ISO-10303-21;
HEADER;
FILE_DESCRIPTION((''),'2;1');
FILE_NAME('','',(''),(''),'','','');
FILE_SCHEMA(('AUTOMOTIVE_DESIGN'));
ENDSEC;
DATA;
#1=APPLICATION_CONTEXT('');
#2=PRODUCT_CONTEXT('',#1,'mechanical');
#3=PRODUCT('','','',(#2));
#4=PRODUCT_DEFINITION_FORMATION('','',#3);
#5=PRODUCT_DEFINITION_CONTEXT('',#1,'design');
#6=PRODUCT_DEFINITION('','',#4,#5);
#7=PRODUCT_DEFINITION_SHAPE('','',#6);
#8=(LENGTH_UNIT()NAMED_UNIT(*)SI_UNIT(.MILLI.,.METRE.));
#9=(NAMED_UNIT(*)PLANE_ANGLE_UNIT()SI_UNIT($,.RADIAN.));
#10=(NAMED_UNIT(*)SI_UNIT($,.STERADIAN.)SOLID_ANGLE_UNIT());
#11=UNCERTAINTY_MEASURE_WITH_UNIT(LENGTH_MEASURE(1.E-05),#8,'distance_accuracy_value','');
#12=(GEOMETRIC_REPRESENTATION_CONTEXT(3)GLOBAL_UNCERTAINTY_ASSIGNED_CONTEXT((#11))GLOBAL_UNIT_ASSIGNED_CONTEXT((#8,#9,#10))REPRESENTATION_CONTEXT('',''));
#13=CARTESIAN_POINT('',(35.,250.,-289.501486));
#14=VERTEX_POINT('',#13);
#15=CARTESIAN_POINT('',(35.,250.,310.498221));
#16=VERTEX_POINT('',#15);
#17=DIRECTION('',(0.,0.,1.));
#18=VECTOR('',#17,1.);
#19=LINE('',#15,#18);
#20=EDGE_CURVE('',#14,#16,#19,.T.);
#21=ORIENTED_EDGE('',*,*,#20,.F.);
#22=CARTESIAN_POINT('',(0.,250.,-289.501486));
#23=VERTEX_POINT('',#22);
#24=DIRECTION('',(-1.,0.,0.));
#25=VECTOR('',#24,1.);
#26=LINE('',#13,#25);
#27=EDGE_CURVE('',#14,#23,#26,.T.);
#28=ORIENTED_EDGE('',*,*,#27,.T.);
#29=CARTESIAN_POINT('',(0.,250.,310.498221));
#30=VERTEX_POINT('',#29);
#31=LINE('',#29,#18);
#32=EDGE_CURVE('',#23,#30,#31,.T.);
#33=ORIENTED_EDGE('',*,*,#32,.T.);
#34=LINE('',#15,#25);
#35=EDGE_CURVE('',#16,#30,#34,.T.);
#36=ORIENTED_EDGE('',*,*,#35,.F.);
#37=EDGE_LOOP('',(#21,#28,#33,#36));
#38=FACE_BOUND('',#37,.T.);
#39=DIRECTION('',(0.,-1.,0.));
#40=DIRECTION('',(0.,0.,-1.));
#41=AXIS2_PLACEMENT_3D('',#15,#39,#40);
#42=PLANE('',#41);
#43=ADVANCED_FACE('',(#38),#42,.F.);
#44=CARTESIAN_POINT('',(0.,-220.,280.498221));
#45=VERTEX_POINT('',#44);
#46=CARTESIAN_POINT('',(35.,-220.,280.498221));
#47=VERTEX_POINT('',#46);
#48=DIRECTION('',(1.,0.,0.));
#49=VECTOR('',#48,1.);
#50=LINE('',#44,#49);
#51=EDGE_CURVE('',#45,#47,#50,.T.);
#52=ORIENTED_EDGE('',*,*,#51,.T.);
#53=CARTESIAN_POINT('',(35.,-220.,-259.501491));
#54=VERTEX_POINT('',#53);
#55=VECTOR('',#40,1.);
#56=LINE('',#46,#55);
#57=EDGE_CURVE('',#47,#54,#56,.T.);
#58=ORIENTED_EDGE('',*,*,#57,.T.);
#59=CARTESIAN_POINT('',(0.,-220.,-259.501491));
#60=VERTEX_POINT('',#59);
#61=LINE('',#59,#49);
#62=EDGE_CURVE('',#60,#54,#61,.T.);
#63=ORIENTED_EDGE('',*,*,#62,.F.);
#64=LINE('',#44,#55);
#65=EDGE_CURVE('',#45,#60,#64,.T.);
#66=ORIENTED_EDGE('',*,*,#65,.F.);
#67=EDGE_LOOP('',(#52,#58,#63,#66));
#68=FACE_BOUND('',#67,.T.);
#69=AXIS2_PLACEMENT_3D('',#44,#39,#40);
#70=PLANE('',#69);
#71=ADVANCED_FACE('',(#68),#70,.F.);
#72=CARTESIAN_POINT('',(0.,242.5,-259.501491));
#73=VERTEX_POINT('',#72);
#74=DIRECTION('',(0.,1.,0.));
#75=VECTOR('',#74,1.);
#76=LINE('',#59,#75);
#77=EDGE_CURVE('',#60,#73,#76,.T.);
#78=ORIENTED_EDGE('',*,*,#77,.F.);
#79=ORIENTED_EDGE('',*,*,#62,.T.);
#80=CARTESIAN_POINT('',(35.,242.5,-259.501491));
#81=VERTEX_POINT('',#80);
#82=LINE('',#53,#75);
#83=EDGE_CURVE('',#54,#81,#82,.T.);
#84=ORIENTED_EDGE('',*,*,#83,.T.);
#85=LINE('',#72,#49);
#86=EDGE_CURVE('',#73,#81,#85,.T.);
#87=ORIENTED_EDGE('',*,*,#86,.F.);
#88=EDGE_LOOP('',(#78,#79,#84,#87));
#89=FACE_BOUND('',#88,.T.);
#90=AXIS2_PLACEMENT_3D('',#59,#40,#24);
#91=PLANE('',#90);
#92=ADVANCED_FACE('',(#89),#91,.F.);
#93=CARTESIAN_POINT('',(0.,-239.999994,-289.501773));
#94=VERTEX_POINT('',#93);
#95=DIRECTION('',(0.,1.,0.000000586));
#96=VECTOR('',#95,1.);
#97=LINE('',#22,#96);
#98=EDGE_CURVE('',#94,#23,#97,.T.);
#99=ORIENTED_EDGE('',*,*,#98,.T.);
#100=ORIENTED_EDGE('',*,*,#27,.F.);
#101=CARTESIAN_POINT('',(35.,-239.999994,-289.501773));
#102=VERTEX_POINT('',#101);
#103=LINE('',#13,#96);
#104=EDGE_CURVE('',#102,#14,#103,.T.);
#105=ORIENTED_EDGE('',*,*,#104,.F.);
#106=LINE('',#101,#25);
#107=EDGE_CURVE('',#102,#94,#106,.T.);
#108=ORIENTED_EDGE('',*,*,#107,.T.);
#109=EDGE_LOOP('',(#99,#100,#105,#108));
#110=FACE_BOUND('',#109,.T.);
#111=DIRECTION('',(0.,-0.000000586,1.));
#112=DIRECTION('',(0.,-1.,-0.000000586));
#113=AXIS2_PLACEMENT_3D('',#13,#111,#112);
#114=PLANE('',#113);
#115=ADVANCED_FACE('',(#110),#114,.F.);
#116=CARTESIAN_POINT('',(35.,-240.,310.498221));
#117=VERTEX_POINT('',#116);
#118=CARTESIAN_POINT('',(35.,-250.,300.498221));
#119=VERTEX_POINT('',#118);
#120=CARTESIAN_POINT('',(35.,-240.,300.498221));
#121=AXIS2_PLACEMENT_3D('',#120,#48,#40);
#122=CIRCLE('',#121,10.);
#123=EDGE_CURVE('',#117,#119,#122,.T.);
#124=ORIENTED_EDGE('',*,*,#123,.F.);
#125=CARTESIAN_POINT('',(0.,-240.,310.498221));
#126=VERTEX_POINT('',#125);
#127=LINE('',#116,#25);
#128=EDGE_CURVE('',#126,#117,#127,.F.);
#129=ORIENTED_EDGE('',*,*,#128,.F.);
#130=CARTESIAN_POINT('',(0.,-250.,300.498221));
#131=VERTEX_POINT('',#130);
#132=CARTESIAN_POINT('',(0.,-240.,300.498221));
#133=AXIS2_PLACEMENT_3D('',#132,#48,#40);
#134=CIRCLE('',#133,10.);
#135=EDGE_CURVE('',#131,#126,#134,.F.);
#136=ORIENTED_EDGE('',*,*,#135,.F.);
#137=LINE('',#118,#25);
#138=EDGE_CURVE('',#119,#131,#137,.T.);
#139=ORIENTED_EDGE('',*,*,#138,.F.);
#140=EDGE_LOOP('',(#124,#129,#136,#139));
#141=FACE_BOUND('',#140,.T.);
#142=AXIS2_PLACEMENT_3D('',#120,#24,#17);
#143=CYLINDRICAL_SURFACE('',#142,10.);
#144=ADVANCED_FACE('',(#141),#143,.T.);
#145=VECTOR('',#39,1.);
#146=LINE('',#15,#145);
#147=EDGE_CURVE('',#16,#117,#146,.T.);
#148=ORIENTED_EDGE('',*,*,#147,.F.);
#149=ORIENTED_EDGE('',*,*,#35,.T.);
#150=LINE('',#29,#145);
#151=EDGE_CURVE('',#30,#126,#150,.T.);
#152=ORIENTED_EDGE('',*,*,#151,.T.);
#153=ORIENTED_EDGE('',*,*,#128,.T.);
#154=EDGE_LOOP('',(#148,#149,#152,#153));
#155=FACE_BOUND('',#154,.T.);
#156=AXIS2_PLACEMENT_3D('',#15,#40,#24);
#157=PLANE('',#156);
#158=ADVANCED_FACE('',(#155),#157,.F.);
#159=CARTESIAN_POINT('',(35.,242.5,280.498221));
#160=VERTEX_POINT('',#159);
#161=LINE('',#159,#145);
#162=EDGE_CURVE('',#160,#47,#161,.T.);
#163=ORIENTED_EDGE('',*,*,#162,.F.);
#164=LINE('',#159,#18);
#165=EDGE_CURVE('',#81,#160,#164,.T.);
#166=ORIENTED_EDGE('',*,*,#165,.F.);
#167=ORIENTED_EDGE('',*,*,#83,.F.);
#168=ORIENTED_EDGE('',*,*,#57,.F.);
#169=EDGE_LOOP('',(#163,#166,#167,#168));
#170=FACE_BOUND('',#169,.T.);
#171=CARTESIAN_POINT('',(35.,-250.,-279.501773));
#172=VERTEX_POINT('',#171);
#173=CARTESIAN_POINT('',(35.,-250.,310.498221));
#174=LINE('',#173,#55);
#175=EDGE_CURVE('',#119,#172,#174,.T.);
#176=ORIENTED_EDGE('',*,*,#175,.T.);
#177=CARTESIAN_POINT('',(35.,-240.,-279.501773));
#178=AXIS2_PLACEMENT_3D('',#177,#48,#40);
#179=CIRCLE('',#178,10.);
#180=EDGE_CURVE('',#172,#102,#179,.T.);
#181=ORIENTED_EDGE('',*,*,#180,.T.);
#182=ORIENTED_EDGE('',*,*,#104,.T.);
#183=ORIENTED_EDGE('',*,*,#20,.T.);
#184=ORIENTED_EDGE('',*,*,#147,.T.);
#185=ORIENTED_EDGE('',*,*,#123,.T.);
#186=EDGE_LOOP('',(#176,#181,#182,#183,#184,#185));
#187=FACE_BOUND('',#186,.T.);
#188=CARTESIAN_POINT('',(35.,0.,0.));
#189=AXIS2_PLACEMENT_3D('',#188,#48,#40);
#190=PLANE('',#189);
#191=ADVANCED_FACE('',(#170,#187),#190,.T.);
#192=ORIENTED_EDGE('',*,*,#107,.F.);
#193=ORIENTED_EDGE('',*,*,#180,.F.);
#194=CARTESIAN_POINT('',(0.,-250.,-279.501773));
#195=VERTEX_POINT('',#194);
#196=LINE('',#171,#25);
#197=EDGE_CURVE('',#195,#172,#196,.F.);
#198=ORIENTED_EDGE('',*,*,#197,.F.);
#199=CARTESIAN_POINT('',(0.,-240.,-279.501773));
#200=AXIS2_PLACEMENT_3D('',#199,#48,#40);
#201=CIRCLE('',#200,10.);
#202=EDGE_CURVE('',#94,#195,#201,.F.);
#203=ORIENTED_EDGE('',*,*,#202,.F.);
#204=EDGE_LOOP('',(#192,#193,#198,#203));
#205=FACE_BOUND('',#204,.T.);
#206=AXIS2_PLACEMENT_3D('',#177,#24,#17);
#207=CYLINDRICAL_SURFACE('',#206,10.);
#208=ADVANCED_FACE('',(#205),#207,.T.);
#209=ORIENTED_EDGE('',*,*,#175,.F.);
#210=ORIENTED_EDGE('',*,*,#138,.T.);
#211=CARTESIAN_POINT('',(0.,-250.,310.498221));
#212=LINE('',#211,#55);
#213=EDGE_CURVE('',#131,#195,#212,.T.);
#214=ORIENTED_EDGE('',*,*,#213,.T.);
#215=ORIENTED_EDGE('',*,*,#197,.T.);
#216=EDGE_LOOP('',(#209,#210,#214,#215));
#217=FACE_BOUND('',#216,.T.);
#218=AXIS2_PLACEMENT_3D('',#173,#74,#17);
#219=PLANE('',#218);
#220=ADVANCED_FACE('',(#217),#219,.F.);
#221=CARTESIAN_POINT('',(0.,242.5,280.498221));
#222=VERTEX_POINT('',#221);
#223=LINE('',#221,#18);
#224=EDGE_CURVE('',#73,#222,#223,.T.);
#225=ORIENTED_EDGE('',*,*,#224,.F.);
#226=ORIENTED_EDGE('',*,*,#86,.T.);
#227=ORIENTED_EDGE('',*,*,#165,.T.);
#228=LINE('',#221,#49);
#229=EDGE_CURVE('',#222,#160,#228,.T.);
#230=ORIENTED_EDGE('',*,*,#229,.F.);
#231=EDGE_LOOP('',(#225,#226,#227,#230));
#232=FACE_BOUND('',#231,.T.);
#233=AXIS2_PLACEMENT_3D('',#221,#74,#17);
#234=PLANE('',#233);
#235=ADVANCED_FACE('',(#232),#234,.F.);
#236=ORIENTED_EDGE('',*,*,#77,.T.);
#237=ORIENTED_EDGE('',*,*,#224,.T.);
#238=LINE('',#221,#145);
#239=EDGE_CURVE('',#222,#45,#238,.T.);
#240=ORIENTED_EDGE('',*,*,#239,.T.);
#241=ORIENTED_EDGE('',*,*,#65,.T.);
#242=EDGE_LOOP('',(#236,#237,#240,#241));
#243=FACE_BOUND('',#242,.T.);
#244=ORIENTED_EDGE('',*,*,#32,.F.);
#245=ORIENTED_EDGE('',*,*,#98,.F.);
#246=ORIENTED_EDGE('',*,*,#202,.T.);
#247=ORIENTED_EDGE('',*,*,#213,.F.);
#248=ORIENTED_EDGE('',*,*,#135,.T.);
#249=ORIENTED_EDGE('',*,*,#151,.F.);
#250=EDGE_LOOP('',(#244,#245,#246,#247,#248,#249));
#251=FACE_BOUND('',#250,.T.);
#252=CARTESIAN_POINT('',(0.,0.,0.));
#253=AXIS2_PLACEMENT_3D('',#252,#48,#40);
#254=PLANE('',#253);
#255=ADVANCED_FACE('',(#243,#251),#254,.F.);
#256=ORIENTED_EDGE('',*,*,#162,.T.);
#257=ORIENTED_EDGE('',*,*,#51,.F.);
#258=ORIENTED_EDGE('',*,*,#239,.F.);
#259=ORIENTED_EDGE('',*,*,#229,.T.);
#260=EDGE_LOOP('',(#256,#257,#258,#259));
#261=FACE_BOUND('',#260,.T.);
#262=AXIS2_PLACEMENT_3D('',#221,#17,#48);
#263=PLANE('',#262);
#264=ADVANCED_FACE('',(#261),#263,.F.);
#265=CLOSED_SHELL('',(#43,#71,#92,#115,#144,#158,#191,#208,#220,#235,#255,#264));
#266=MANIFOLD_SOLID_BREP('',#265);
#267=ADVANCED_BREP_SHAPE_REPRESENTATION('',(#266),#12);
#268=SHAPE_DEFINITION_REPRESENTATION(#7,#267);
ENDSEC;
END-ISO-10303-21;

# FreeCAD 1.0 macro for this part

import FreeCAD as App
import Part
import Sketcher
from FreeCAD import Vector
Q = App.Units.Quantity


def edges_at(feature, points):
    """Names of the edges that pass closest to the given points."""
    edges = feature.Shape.Edges
    near = lambda p: min(range(len(edges)), key=lambda i: edges[i].distToShape(Part.Vertex(*p))[0])
    return sorted({f"Edge{near(p) + 1}" for p in points})


def add_polygon(sketch, points):
    """Adds a closed chain of lines whose ends are joined by coincident constraints."""
    first, n = sketch.GeometryCount, len(points)
    for a, b in zip(points, points[1:] + points[:1]):
        sketch.addGeometry(Part.LineSegment(App.Vector(*a, 0), App.Vector(*b, 0)), False)
    for i in range(n):
        sketch.addConstraint(Sketcher.Constraint("Coincident", first + i, 2, first + (i + 1) % n, 1))

doc = App.newDocument("Part")
params = doc.addObject("Spreadsheet::Sheet", "Params")
for row, (alias, value) in enumerate([
    ("sketch1_width", "500 mm"),
    ("sketch1_height", "600 mm"),
    ("pad1_length", "35 mm"),
    ("sketch2_width", "462.5 mm"),
    ("pocket1_length", "35 mm"),
    ("fillet_radius", "10 mm"),
], start=1):
    params.set(f"A{row}", alias)
    params.set(f"B{row}", "=" + value)
    params.setAlias(f"B{row}", alias)

body = doc.addObject("PartDesign::Body", "Body")

sketch1 = doc.addObject("Sketcher::SketchObject", "Sketch")
body.addObject(sketch1)
sketch1.AttachmentSupport = (doc.YZ_Plane, [""])
sketch1.MapMode = "FlatFace"
add_polygon(sketch1, [(250, -289.501486), (250, 310.498221), (-250, 310.498221), (-250, -289.501779)])
sketch1.addConstraint([
    Sketcher.Constraint("Vertical", 0),
    Sketcher.Constraint("Horizontal", 1),
    Sketcher.Constraint("Vertical", 2),
    Sketcher.Constraint("DistanceX", 1, 2, 1, 1, Q("500 mm")),
    Sketcher.Constraint("DistanceY", 2, 2, 2, 1, Q("600 mm")),
    Sketcher.Constraint("DistanceX", -1, 1, 0, 2, Q("250 mm")),
    Sketcher.Constraint("DistanceY", 0, 1, 0, 2, Q("599.999707 mm")),
    Sketcher.Constraint("DistanceY", -1, 1, 0, 2, Q("310.498221 mm")),
])
sketch1.setExpression("Constraints[7]", "Params.sketch1_width")
sketch1.setExpression("Constraints[8]", "Params.sketch1_height")
pad1 = doc.addObject("PartDesign::Pad", "Pad")
body.addObject(pad1)
pad1.Profile = sketch1
pad1.setExpression("Length", "Params.pad1_length")

sketch2 = doc.addObject("Sketcher::SketchObject", "Sketch001")
body.addObject(sketch2)
sketch2.AttachmentSupport = (doc.YZ_Plane, [""])
sketch2.MapMode = "FlatFace"
sketch2.AttachmentOffset = App.Placement(Vector(0, 0, 35), App.Rotation())
add_polygon(sketch2, [(242.5, 280.498221), (-220, 280.498221), (-220, -259.501491), (242.5, -259.501491)])
sketch2.addConstraint([
    Sketcher.Constraint("Horizontal", 0),
    Sketcher.Constraint("Vertical", 1),
    Sketcher.Constraint("Horizontal", 2),
    Sketcher.Constraint("Vertical", 3),
    Sketcher.Constraint("DistanceX", 0, 2, 0, 1, Q("462.5 mm")),
    Sketcher.Constraint("DistanceX", 0, 2, -1, 1, Q("220 mm")),
    Sketcher.Constraint("DistanceY", 1, 2, 1, 1, Q("539.999711 mm")),
    Sketcher.Constraint("DistanceY", -1, 1, 0, 2, Q("280.498221 mm")),
])
sketch2.setExpression("Constraints[8]", "Params.sketch2_width")
pocket1 = doc.addObject("PartDesign::Pocket", "Pocket")
body.addObject(pocket1)
pocket1.Profile = sketch2
pocket1.setExpression("Length", "Params.pocket1_length")
doc.recompute()

fillet = doc.addObject("PartDesign::Fillet", "Fillet")
body.addObject(fillet)
fillet.Base = (pocket1, edges_at(pocket1, [(17.5, -250, -289.502), (17.5, -250, 310.498)]))
fillet.setExpression("Radius", "Params.fillet_radius")

doc.recompute()
